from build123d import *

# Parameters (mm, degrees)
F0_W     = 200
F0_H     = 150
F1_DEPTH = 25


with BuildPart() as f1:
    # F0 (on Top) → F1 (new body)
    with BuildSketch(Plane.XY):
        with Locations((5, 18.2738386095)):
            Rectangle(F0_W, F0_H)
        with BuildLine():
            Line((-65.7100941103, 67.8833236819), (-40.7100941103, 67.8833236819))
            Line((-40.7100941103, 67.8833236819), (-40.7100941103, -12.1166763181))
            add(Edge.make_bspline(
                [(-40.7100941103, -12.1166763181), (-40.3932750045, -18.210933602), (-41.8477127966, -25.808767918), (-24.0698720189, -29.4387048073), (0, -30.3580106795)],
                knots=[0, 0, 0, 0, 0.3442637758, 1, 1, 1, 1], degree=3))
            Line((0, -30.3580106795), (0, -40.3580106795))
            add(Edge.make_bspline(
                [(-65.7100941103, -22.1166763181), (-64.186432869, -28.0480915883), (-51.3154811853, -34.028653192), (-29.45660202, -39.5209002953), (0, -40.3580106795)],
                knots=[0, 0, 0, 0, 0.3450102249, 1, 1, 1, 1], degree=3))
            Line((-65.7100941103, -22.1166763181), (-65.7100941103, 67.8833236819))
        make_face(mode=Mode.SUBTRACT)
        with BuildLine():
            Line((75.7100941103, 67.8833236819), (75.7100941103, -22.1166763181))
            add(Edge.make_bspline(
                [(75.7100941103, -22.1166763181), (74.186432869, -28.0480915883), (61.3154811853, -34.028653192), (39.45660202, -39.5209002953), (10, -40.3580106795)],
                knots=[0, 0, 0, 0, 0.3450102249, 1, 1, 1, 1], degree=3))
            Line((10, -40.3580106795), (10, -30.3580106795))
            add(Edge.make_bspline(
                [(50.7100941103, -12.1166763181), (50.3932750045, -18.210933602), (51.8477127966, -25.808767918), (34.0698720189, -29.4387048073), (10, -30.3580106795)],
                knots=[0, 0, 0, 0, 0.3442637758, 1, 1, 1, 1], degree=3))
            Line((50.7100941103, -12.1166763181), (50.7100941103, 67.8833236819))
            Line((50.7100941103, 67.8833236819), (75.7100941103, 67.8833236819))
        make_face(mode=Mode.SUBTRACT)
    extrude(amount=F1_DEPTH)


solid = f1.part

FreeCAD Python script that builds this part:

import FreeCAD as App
import Part
import Sketcher
from FreeCAD import Vector

doc = App.newDocument("Part")
body = doc.addObject("PartDesign::Body", "Body")

# Sketch on XY plane
sketch1 = body.newObject("Sketcher::SketchObject", "Sketch")
sketch1.AttachmentSupport = (doc.getObject("XY_Plane"), [""])
sketch1.MapMode = "FlatFace"
sketch1.addGeometry([
    Part.LineSegment(Vector(-95, 93.273839, 0), Vector(-95, -56.726161, 0)),  # 0
    Part.LineSegment(Vector(-95, -56.726161, 0), Vector(105, -56.726161, 0)),  # 1
    Part.LineSegment(Vector(105, -56.726161, 0), Vector(105, 93.273839, 0)),  # 2
    Part.LineSegment(Vector(105, 93.273839, 0), Vector(-95, 93.273839, 0)),  # 3
    Part.LineSegment(Vector(-65.710094, -22.116676, 0), Vector(-65.710094, 67.883324, 0)),  # 4
    Part.LineSegment(Vector(-65.710094, 67.883324, 0), Vector(-40.710094, 67.883324, 0)),  # 5
    Part.LineSegment(Vector(-40.710094, 67.883324, 0), Vector(-40.710094, -12.116676, 0)),  # 6
    Part.BSplineCurve([Vector(-40.710094, -12.116676, 0), Vector(-40.393275, -18.210934, 0), Vector(-41.847713, -25.808768, 0), Vector(-24.069872, -29.438705, 0), Vector(0, -30.358011, 0)], [4, 1, 4], [0, 0.344263776, 1], False, 3, [1, 1, 1, 1, 1], False),  # 7
    Part.LineSegment(Vector(0, -30.358011, 0), Vector(0, -40.358011, 0)),  # 8
    Part.BSplineCurve([Vector(-65.710094, -22.116676, 0), Vector(-64.186433, -28.048092, 0), Vector(-51.315481, -34.028653, 0), Vector(-29.456602, -39.5209, 0), Vector(0, -40.358011, 0)], [4, 1, 4], [0, 0.345010225, 1], False, 3, [1, 1, 1, 1, 1], False),  # 9
    Part.LineSegment(Vector(50.710094, 67.883324, 0), Vector(75.710094, 67.883324, 0)),  # 10
    Part.LineSegment(Vector(75.710094, 67.883324, 0), Vector(75.710094, -22.116676, 0)),  # 11
    Part.BSplineCurve([Vector(75.710094, -22.116676, 0), Vector(74.186433, -28.048092, 0), Vector(61.315481, -34.028653, 0), Vector(39.456602, -39.5209, 0), Vector(10, -40.358011, 0)], [4, 1, 4], [0, 0.345010225, 1], False, 3, [1, 1, 1, 1, 1], False),  # 12
    Part.LineSegment(Vector(10, -40.358011, 0), Vector(10, -30.358011, 0)),  # 13
    Part.BSplineCurve([Vector(50.710094, -12.116676, 0), Vector(50.393275, -18.210934, 0), Vector(51.847713, -25.808768, 0), Vector(34.069872, -29.438705, 0), Vector(10, -30.358011, 0)], [4, 1, 4], [0, 0.344263776, 1], False, 3, [1, 1, 1, 1, 1], False),  # 14
    Part.LineSegment(Vector(50.710094, -12.116676, 0), Vector(50.710094, 67.883324, 0)),  # 15
], False)
sketch1.addConstraint([
    Sketcher.Constraint("Block", 7),
    Sketcher.Constraint("Block", 9),
    Sketcher.Constraint("Block", 12),
    Sketcher.Constraint("Block", 14),
    Sketcher.Constraint("Coincident", 0, 2, 1, 1),
    Sketcher.Constraint("Coincident", 1, 2, 2, 1),
    Sketcher.Constraint("Coincident", 2, 2, 3, 1),
    Sketcher.Constraint("Coincident", 3, 2, 0, 1),
    Sketcher.Constraint("Coincident", 4, 2, 5, 1),
    Sketcher.Constraint("Coincident", 5, 2, 6, 1),
    Sketcher.Constraint("Coincident", 6, 2, 7, 1),
    Sketcher.Constraint("Coincident", 7, 2, 8, 1),
    Sketcher.Constraint("Coincident", 8, 2, 9, 2),
    Sketcher.Constraint("Coincident", 9, 1, 4, 1),
    Sketcher.Constraint("Coincident", 10, 2, 11, 1),
    Sketcher.Constraint("Coincident", 11, 2, 12, 1),
    Sketcher.Constraint("Coincident", 12, 2, 13, 1),
    Sketcher.Constraint("Coincident", 13, 2, 14, 2),
    Sketcher.Constraint("Coincident", 14, 1, 15, 1),
    Sketcher.Constraint("Coincident", 15, 2, 10, 1),
    Sketcher.Constraint("Vertical", 0),
    Sketcher.Constraint("Horizontal", 1),
    Sketcher.Constraint("Vertical", 2),
    Sketcher.Constraint("Horizontal", 3),
    Sketcher.Constraint("Vertical", 4),
    Sketcher.Constraint("Horizontal", 5),
    Sketcher.Constraint("Vertical", 6),
    Sketcher.Constraint("Horizontal", 10),
    Sketcher.Constraint("Vertical", 11),
    Sketcher.Constraint("Vertical", 15),
    Sketcher.Constraint("Horizontal", 5, 2, 10, 2),
    Sketcher.Constraint("DistanceX", 1, 1, 1, 2, 200.0),
    Sketcher.Constraint("DistanceY", 0, 2, 0, 1, 150.0),
    Sketcher.Constraint("DistanceY", 4, 1, 4, 2, 90.0),
    Sketcher.Constraint("DistanceX", 0, 2, -1, 1, 95.0),
    Sketcher.Constraint("DistanceY", 0, 2, -1, 1, 56.726161),
])
pad1 = body.newObject("PartDesign::Pad", "Pad")
pad1.Profile = sketch1
pad1.Length = 25

doc.recompute()
